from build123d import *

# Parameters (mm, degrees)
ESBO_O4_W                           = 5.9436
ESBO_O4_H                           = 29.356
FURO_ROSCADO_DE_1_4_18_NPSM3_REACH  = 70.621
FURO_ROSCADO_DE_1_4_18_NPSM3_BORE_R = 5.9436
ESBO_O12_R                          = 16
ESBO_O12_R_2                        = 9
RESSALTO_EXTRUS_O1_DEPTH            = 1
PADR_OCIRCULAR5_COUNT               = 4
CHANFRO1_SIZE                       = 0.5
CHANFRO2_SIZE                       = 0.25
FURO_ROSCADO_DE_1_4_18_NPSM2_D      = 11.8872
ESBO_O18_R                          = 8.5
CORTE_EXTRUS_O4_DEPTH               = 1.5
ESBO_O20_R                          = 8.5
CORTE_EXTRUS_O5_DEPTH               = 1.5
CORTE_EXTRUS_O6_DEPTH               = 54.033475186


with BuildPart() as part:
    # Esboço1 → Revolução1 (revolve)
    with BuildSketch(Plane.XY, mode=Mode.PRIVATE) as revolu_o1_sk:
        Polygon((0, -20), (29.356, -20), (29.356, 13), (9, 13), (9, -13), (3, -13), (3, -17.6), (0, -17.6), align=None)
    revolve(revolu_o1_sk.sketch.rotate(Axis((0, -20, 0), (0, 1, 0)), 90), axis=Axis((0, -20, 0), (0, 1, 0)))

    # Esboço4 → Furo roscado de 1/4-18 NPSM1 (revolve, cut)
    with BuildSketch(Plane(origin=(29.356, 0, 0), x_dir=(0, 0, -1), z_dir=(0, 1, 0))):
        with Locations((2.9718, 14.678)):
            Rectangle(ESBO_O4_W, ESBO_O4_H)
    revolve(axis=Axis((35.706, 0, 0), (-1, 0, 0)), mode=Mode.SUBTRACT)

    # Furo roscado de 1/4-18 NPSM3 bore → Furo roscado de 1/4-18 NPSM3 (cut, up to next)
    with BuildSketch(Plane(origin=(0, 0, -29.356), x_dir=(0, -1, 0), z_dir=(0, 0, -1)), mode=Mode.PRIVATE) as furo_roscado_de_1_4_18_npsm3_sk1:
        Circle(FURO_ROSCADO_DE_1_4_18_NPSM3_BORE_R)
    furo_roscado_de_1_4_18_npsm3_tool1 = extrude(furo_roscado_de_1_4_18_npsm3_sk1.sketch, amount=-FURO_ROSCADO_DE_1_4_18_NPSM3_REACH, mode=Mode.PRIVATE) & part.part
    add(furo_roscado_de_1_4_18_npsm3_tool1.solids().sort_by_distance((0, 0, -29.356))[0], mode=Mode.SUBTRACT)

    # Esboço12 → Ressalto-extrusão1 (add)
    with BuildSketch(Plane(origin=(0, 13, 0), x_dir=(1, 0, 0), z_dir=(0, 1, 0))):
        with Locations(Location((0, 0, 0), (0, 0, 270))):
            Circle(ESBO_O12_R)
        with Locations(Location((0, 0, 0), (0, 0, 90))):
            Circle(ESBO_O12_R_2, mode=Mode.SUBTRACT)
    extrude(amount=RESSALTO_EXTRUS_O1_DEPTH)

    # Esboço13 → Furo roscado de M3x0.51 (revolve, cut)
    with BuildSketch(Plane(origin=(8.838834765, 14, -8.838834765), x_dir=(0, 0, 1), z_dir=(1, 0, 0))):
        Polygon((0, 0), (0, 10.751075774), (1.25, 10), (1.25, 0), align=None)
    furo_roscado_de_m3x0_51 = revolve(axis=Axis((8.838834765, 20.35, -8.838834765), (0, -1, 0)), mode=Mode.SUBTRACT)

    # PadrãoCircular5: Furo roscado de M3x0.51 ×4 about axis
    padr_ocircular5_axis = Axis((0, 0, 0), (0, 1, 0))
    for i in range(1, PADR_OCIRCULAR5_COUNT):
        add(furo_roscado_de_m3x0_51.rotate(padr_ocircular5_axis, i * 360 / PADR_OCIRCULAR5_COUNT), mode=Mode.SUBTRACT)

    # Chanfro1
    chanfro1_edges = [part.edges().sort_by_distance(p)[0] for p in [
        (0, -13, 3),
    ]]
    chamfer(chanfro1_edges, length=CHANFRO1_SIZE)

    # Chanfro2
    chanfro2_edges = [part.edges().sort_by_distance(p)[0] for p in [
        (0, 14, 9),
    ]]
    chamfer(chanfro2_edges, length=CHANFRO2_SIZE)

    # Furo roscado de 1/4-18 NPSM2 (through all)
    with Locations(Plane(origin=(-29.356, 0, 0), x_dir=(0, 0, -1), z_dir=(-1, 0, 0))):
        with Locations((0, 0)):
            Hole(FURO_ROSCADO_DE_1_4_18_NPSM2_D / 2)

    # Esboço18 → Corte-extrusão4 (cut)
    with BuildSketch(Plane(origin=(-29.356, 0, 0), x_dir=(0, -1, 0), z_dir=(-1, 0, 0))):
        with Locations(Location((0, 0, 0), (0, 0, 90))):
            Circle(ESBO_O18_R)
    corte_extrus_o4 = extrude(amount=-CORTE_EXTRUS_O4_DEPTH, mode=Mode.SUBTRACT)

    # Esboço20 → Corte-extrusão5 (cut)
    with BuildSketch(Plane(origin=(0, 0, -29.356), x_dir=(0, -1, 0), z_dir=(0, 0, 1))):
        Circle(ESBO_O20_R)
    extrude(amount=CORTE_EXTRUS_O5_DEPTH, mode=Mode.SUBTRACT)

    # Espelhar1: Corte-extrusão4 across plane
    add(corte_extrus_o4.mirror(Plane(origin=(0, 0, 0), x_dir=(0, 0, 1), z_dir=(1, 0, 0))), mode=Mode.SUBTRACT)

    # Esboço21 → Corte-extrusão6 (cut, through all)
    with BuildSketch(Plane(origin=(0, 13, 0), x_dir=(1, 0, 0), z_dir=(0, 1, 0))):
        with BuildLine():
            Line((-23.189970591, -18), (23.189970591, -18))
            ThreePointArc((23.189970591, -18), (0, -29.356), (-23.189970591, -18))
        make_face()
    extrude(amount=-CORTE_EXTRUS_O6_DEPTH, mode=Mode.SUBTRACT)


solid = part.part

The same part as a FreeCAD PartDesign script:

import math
import FreeCAD as App
import Part
import Sketcher
Q = App.Units.Quantity


def edges_at(feature, points):
    """Names of the edges that pass closest to the given points."""
    edges = feature.Shape.Edges
    near = lambda p: min(range(len(edges)), key=lambda i: edges[i].distToShape(Part.Vertex(*p))[0])
    return sorted({f"Edge{near(p) + 1}" for p in points})


def add_polygon(sketch, points):
    """Adds a closed chain of lines whose ends are joined by coincident constraints."""
    first, n = sketch.GeometryCount, len(points)
    for a, b in zip(points, points[1:] + points[:1]):
        sketch.addGeometry(Part.LineSegment(App.Vector(*a, 0), App.Vector(*b, 0)), False)
    for i in range(n):
        sketch.addConstraint(Sketcher.Constraint("Coincident", first + i, 2, first + (i + 1) % n, 1))

doc = App.newDocument("Part")
params = doc.addObject("Spreadsheet::Sheet", "Params")
for row, (alias, value) in enumerate([
    ("sketch1_width", "6 mm"),
    ("sketch1_width2", "3 mm"),
    ("sketch1_height", "33 mm"),
    ("sketch1_height2", "26 mm"),
    ("sketch1_height3", "4.6 mm"),
    ("revolution_angle", "360 deg"),
    ("groove_angle", "360 deg"),
    ("sketch4_diameter", "32 mm"),
    ("sketch4_diameter2", "18 mm"),
    ("pad1_length", "1 mm"),
    ("sketch5_width", "10 mm"),
    ("sketch5_height", "1.25 mm"),
    ("groove2_angle", "360 deg"),
    ("chamfer_size", "0.5 mm"),
    ("chamfer2_size", "0.25 mm"),
    ("hole_diameter", "11.8872 mm"),
    ("sketch7_diameter", "17 mm"),
    ("pocket2_length", "1.5 mm"),
    ("sketch8_diameter", "17 mm"),
    ("pocket3_length", "1.5 mm"),
], start=1):
    params.set(f"A{row}", alias)
    params.set(f"B{row}", "=" + value)
    params.setAlias(f"B{row}", alias)

body = doc.addObject("PartDesign::Body", "Body")

# Sketch on XY plane
sketch1 = body.newObject("Sketcher::SketchObject", "Sketch")
sketch1.AttachmentSupport = (doc.getObject("XY_Plane"), [""])
sketch1.MapMode = "FlatFace"
add_polygon(sketch1, [(0, -20), (29.4, -20), (29.4, 13), (9, 13), (9, -13), (3, -13), (3, -17.6), (0, -17.6)])  # lines 0-7
sketch1.addConstraint([
    Sketcher.Constraint("Horizontal", 0),
    Sketcher.Constraint("Vertical", 1),
    Sketcher.Constraint("Horizontal", 2),
    Sketcher.Constraint("Vertical", 3),
    Sketcher.Constraint("Horizontal", 4),
    Sketcher.Constraint("Vertical", 5),
    Sketcher.Constraint("Horizontal", 6),
    Sketcher.Constraint("Vertical", 7),
    Sketcher.Constraint("PointOnObject", 6, 2, -2),
    Sketcher.Constraint("DistanceX", 4, 2, 4, 1, Q("6 mm")),
    Sketcher.Constraint("DistanceX", 6, 2, 6, 1, Q("3 mm")),
    Sketcher.Constraint("DistanceY", 1, 1, 1, 2, Q("33 mm")),
    Sketcher.Constraint("DistanceY", 3, 2, 3, 1, Q("26 mm")),
    Sketcher.Constraint("DistanceY", 5, 2, 5, 1, Q("4.6 mm")),
    Sketcher.Constraint("DistanceY", 0, 2, -1, 1, Q("20 mm")),
    Sketcher.Constraint("DistanceX", 0, 1, 0, 2, Q("29.356 mm")),
])
sketch1.setExpression("Constraints[17]", "Params.sketch1_width")
sketch1.setExpression("Constraints[18]", "Params.sketch1_width2")
sketch1.setExpression("Constraints[19]", "Params.sketch1_height")
sketch1.setExpression("Constraints[20]", "Params.sketch1_height2")
sketch1.setExpression("Constraints[21]", "Params.sketch1_height3")
revolution = body.newObject("PartDesign::Revolution", "Revolution")
revolution.Profile = sketch1
revolution.ReferenceAxis = (sketch1, ["V_Axis"])
revolution.setExpression("Angle", "Params.revolution_angle")

# Sketch on XZ plane
sketch2 = body.newObject("Sketcher::SketchObject", "Sketch001")
sketch2.AttachmentSupport = (doc.getObject("XZ_Plane"), [""])
sketch2.MapMode = "FlatFace"
add_polygon(sketch2, [(0, 0), (29, 0), (29, -6), (0, -6)])  # lines 0-3
sketch2.addConstraint([
    Sketcher.Constraint("Horizontal", 0),
    Sketcher.Constraint("Vertical", 1),
    Sketcher.Constraint("Horizontal", 2),
    Sketcher.Constraint("Vertical", 3),
    Sketcher.Constraint("Coincident", 3, 2, -1, 1),
    Sketcher.Constraint("DistanceX", 0, 1, 0, 2, Q("29.356 mm")),
    Sketcher.Constraint("DistanceY", 1, 2, 1, 1, Q("5.9436 mm")),
])
groove = body.newObject("PartDesign::Groove", "Groove")
groove.Profile = sketch2
groove.ReferenceAxis = (sketch2, ["H_Axis"])
groove.setExpression("Angle", "Params.groove_angle")

# Sketch on XY plane
sketch3 = body.newObject("Sketcher::SketchObject", "Sketch002")
sketch3.AttachmentSupport = (doc.getObject("XY_Plane"), [""])
sketch3.MapMode = "FlatFace"
sketch3.AttachmentOffset = App.Placement(App.Vector(0, 0, -29.356), App.Rotation())
sketch3.addGeometry(Part.Circle(App.Vector(0, 0, 0), App.Vector(0, 0, 1), 6), False)
sketch3.addConstraint([
    Sketcher.Constraint("Coincident", 0, 3, -1, 1),
    Sketcher.Constraint("Diameter", 0, Q("11.8872 mm")),
])
pocket1 = body.newObject("PartDesign::Pocket", "Pocket")
pocket1.Profile = sketch3
pocket1.Type = "UpToFirst"
pocket1.Reversed = True

# Sketch on XZ plane
sketch4 = body.newObject("Sketcher::SketchObject", "Sketch003")
sketch4.AttachmentSupport = (doc.getObject("XZ_Plane"), [""])
sketch4.MapMode = "FlatFace"
sketch4.AttachmentOffset = App.Placement(App.Vector(0, 0, -13), App.Rotation())
sketch4.addGeometry([
    Part.Circle(App.Vector(0, 0, 0), App.Vector(0, 0, 1), 16),
    Part.Circle(App.Vector(0, 0, 0), App.Vector(0, 0, 1), 9),
], False)
sketch4.addConstraint([
    Sketcher.Constraint("Coincident", 0, 3, -1, 1),
    Sketcher.Constraint("Coincident", 1, 3, -1, 1),
    Sketcher.Constraint("Diameter", 0, Q("32 mm")),
    Sketcher.Constraint("Diameter", 1, Q("18 mm")),
])
sketch4.setExpression("Constraints[2]", "Params.sketch4_diameter")
sketch4.setExpression("Constraints[3]", "Params.sketch4_diameter2")
pad1 = body.newObject("PartDesign::Pad", "Pad")
pad1.Profile = sketch4
pad1.setExpression("Length", "Params.pad1_length")
pad1.Reversed = True

# Sketch on YZ plane
sketch5 = body.newObject("Sketcher::SketchObject", "Sketch004")
sketch5.AttachmentSupport = (doc.getObject("YZ_Plane"), [""])
sketch5.MapMode = "FlatFace"
sketch5.AttachmentOffset = App.Placement(App.Vector(0, 0, 8.838835), App.Rotation())
add_polygon(sketch5, [(3.2, -8.8), (14, -8.8), (14, -7.6), (4, -7.6)])  # lines 0-3
sketch5.addGeometry(Part.LineSegment(App.Vector(14, -8.8, 0), App.Vector(3.2, -8.8, 0)), True)  # axis
sketch5.addConstraint([
    Sketcher.Constraint("Horizontal", 0),
    Sketcher.Constraint("Vertical", 1),
    Sketcher.Constraint("Horizontal", 2),
    Sketcher.Constraint("Horizontal", 4),
    Sketcher.Constraint("Coincident", 4, 1, 0, 2),
    Sketcher.Constraint("Equal", 0, 4),
    Sketcher.Constraint("DistanceX", 2, 2, 2, 1, Q("10 mm")),
    Sketcher.Constraint("Angle", 3, Q("-121 deg")),
    Sketcher.Constraint("DistanceX", -1, 1, 0, 2, Q("14 mm")),
    Sketcher.Constraint("DistanceY", 1, 1, 1, 2, Q("1.25 mm")),
    Sketcher.Constraint("DistanceY", 0, 2, -1, 1, Q("8.838835 mm")),
])
sketch5.setExpression("Constraints[10]", "Params.sketch5_width")
sketch5.setExpression("Constraints[13]", "Params.sketch5_height")
groove2 = body.newObject("PartDesign::Groove", "Groove001")
groove2.Profile = sketch5
groove2.ReferenceAxis = (sketch5, ["Axis0"])
groove2.setExpression("Angle", "Params.groove2_angle")
doc.recompute()

polarpattern = body.newObject("PartDesign::PolarPattern", "PolarPattern")
polarpattern.Originals = [groove2]
polarpattern.Axis = (doc.getObject("Y_Axis"), [""])
polarpattern.Angle = 360
polarpattern.Occurrences = 4
body.Tip = polarpattern
doc.recompute()

chamfer = body.newObject("PartDesign::Chamfer", "Chamfer")
chamfer.Base = (polarpattern, edges_at(polarpattern, [(0, -13, 3)]))
chamfer.setExpression("Size", "Params.chamfer_size")
doc.recompute()

chamfer2 = body.newObject("PartDesign::Chamfer", "Chamfer001")
chamfer2.Base = (chamfer, edges_at(chamfer, [(0, 14, 9)]))
chamfer2.setExpression("Size", "Params.chamfer2_size")

# Sketch on YZ plane
sketch6 = body.newObject("Sketcher::SketchObject", "Sketch005")
sketch6.AttachmentSupport = (doc.getObject("YZ_Plane"), [""])
sketch6.MapMode = "FlatFace"
sketch6.AttachmentOffset = App.Placement(App.Vector(0, 0, -29.356), App.Rotation())
sketch6.addGeometry(Part.Circle(App.Vector(0, 0, 0), App.Vector(0, 0, 1), 6), False)
sketch6.addConstraint([
    Sketcher.Constraint("Coincident", 0, 3, -1, 1),
    Sketcher.Constraint("Diameter", 0, Q("11.8872 mm")),
])
doc.recompute()
hole = body.newObject("PartDesign::Hole", "Hole")
hole.Profile = sketch6
hole.ThreadType = "None"
hole.setExpression("Diameter", "Params.hole_diameter")
hole.DepthType = "ThroughAll"
hole.Reversed = True

# Sketch on YZ plane
sketch7 = body.newObject("Sketcher::SketchObject", "Sketch006")
sketch7.AttachmentSupport = (doc.getObject("YZ_Plane"), [""])
sketch7.MapMode = "FlatFace"
sketch7.AttachmentOffset = App.Placement(App.Vector(0, 0, -29.356), App.Rotation())
sketch7.addGeometry(Part.Circle(App.Vector(0, 0, 0), App.Vector(0, 0, 1), 8), False)
sketch7.addConstraint([
    Sketcher.Constraint("Coincident", 0, 3, -1, 1),
    Sketcher.Constraint("Diameter", 0, Q("17 mm")),
])
sketch7.setExpression("Constraints[1]", "Params.sketch7_diameter")
pocket2 = body.newObject("PartDesign::Pocket", "Pocket001")
pocket2.Profile = sketch7
pocket2.setExpression("Length", "Params.pocket2_length")
pocket2.Reversed = True

# Sketch on XY plane
sketch8 = body.newObject("Sketcher::SketchObject", "Sketch007")
sketch8.AttachmentSupport = (doc.getObject("XY_Plane"), [""])
sketch8.MapMode = "FlatFace"
sketch8.AttachmentOffset = App.Placement(App.Vector(0, 0, -29.356), App.Rotation())
sketch8.addGeometry(Part.Circle(App.Vector(0, 0, 0), App.Vector(0, 0, 1), 8), False)
sketch8.addConstraint([
    Sketcher.Constraint("Coincident", 0, 3, -1, 1),
    Sketcher.Constraint("Diameter", 0, Q("17 mm")),
])
sketch8.setExpression("Constraints[1]", "Params.sketch8_diameter")
pocket3 = body.newObject("PartDesign::Pocket", "Pocket002")
pocket3.Profile = sketch8
pocket3.setExpression("Length", "Params.pocket3_length")
pocket3.Reversed = True
doc.recompute()

mirrored = body.newObject("PartDesign::Mirrored", "Mirrored")
mirrored.Originals = [pocket2]
mirrored.MirrorPlane = (doc.getObject("YZ_Plane"), [""])
body.Tip = mirrored

# Sketch on XZ plane
sketch9 = body.newObject("Sketcher::SketchObject", "Sketch008")
sketch9.AttachmentSupport = (doc.getObject("XZ_Plane"), [""])
sketch9.MapMode = "FlatFace"
sketch9.AttachmentOffset = App.Placement(App.Vector(0, 0, -13), App.Rotation())
sketch9.addGeometry([
    Part.LineSegment(App.Vector(23, 18, 0), App.Vector(-23, 18, 0)),
    Part.ArcOfCircle(Part.Circle(App.Vector(0, 0, 0), App.Vector(0, 0, 1), 29), math.radians(38), math.radians(142)),
], False)
sketch9.addConstraint([
    Sketcher.Constraint("Coincident", 0, 1, 1, 1),
    Sketcher.Constraint("Coincident", 1, 2, 0, 2),
    Sketcher.Constraint("Horizontal", 0),
    Sketcher.Constraint("Coincident", 1, 3, -1, 1),
    Sketcher.Constraint("DistanceY", -1, 1, 0, 1, Q("18 mm")),
    Sketcher.Constraint("Radius", 1, Q("29.356 mm")),
])
pocket4 = body.newObject("PartDesign::Pocket", "Pocket003")
pocket4.Profile = sketch9
pocket4.Type = "ThroughAll"
pocket4.Reversed = True

doc.recompute()
